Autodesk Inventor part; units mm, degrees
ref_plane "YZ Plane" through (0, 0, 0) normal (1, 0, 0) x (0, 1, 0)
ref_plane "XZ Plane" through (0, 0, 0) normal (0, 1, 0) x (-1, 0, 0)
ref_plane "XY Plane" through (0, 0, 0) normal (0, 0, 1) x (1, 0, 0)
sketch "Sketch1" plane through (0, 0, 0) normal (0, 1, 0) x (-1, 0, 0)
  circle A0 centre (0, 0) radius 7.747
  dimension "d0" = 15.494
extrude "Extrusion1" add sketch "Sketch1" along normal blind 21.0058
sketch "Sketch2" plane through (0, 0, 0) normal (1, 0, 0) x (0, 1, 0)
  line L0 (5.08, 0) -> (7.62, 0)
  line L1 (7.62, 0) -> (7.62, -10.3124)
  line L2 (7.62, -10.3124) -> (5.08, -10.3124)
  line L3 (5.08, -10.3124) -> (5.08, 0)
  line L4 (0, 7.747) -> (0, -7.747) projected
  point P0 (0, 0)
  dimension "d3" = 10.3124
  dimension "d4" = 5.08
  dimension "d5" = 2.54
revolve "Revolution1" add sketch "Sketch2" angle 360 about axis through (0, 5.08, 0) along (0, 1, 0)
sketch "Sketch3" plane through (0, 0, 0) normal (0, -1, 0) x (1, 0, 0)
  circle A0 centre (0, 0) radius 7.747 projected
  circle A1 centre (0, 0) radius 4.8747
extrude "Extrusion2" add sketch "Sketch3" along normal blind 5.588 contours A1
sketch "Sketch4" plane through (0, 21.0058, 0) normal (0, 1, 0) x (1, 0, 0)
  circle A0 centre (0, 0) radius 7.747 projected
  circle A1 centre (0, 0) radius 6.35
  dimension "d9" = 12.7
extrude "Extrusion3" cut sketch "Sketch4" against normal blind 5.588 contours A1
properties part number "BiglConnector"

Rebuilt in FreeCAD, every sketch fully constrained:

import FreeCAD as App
import Part
import Sketcher
Q = App.Units.Quantity

doc = App.newDocument("Part")
params = doc.addObject("Spreadsheet::Sheet", "Params")
for row, (alias, value) in enumerate([
    ("sketch1_diameter", "0.61 in"),
    ("pad1_length", "0.827 in"),
    ("sketch2_width", "0.1 in"),
    ("sketch2_height", "0.406 in"),
    ("revolution_angle", "360 deg"),
    ("pad2_length", "0.22 in"),
    ("sketch4_diameter", "0.5 in"),
    ("pocket1_length", "0.22 in"),
], start=1):
    params.set(f"A{row}", alias)
    params.set(f"B{row}", "=" + value)
    params.setAlias(f"B{row}", alias)

body = doc.addObject("PartDesign::Body", "Body")

# Sketch on XZ plane
sketch1 = body.newObject("Sketcher::SketchObject", "Sketch")
sketch1.AttachmentSupport = (doc.getObject("XZ_Plane"), [""])
sketch1.MapMode = "FlatFace"
sketch1.addGeometry(Part.Circle(App.Vector(0, 0, 0), App.Vector(0, 0, 1), 7.747), False)
sketch1.addConstraint([
    Sketcher.Constraint("Coincident", 0, 3, -1, 1),
    Sketcher.Constraint("Diameter", 0, Q("0.61 in")),
])
sketch1.setExpression("Constraints[1]", "Params.sketch1_diameter")
pad1 = body.newObject("PartDesign::Pad", "Pad")
pad1.Profile = sketch1
pad1.setExpression("Length", "Params.pad1_length")
pad1.Reversed = True

# Sketch on YZ plane
sketch2 = body.newObject("Sketcher::SketchObject", "Sketch001")
sketch2.AttachmentSupport = (doc.getObject("YZ_Plane"), [""])
sketch2.MapMode = "FlatFace"
sketch2.addGeometry([
    Part.LineSegment(App.Vector(7.62, 0, 0), App.Vector(5.08, 0, 0)),
    Part.LineSegment(App.Vector(5.08, 0, 0), App.Vector(5.08, -10.3124, 0)),
    Part.LineSegment(App.Vector(5.08, -10.3124, 0), App.Vector(7.62, -10.3124, 0)),
    Part.LineSegment(App.Vector(7.62, -10.3124, 0), App.Vector(7.62, 0, 0)),
], False)
sketch2.addConstraint([
    Sketcher.Constraint("Coincident", 0, 2, 1, 1),
    Sketcher.Constraint("Coincident", 1, 2, 2, 1),
    Sketcher.Constraint("Coincident", 2, 2, 3, 1),
    Sketcher.Constraint("Coincident", 3, 2, 0, 1),
    Sketcher.Constraint("Horizontal", 0),
    Sketcher.Constraint("Vertical", 1),
    Sketcher.Constraint("Horizontal", 2),
    Sketcher.Constraint("Vertical", 3),
    Sketcher.Constraint("PointOnObject", 0, 2, -1),
    Sketcher.Constraint("DistanceX", 0, 2, 0, 1, Q("0.1 in")),
    Sketcher.Constraint("DistanceX", -1, 1, 0, 2, Q("0.2 in")),
    Sketcher.Constraint("DistanceY", 1, 2, 1, 1, Q("0.406 in")),
])
sketch2.setExpression("Constraints[9]", "Params.sketch2_width")
sketch2.setExpression("Constraints[11]", "Params.sketch2_height")
revolution = body.newObject("PartDesign::Revolution", "Revolution")
revolution.Profile = sketch2
revolution.ReferenceAxis = (sketch2, ["H_Axis"])
revolution.setExpression("Angle", "Params.revolution_angle")

# Sketch on XZ plane
sketch3 = body.newObject("Sketcher::SketchObject", "Sketch002")
sketch3.AttachmentSupport = (doc.getObject("XZ_Plane"), [""])
sketch3.MapMode = "FlatFace"
sketch3.addGeometry(Part.Circle(App.Vector(0, 0, 0), App.Vector(0, 0, 1), 4.8747), False)
sketch3.addConstraint([
    Sketcher.Constraint("Coincident", 0, 3, -1, 1),
    Sketcher.Constraint("Diameter", 0, Q("9.7494 mm")),
])
pad2 = body.newObject("PartDesign::Pad", "Pad001")
pad2.Profile = sketch3
pad2.setExpression("Length", "Params.pad2_length")

# Sketch on XZ plane
sketch4 = body.newObject("Sketcher::SketchObject", "Sketch003")
sketch4.AttachmentSupport = (doc.getObject("XZ_Plane"), [""])
sketch4.MapMode = "FlatFace"
sketch4.AttachmentOffset = App.Placement(App.Vector(0, 0, -0.827 * 25.4), App.Rotation())
sketch4.addGeometry(Part.Circle(App.Vector(0, 0, 0), App.Vector(0, 0, 1), 6.35), False)
sketch4.addConstraint([
    Sketcher.Constraint("Coincident", 0, 3, -1, 1),
    Sketcher.Constraint("Diameter", 0, Q("0.5 in")),
])
sketch4.setExpression("Constraints[1]", "Params.sketch4_diameter")
pocket1 = body.newObject("PartDesign::Pocket", "Pocket")
pocket1.Profile = sketch4
pocket1.setExpression("Length", "Params.pocket1_length")
pocket1.Reversed = True

doc.recompute()
